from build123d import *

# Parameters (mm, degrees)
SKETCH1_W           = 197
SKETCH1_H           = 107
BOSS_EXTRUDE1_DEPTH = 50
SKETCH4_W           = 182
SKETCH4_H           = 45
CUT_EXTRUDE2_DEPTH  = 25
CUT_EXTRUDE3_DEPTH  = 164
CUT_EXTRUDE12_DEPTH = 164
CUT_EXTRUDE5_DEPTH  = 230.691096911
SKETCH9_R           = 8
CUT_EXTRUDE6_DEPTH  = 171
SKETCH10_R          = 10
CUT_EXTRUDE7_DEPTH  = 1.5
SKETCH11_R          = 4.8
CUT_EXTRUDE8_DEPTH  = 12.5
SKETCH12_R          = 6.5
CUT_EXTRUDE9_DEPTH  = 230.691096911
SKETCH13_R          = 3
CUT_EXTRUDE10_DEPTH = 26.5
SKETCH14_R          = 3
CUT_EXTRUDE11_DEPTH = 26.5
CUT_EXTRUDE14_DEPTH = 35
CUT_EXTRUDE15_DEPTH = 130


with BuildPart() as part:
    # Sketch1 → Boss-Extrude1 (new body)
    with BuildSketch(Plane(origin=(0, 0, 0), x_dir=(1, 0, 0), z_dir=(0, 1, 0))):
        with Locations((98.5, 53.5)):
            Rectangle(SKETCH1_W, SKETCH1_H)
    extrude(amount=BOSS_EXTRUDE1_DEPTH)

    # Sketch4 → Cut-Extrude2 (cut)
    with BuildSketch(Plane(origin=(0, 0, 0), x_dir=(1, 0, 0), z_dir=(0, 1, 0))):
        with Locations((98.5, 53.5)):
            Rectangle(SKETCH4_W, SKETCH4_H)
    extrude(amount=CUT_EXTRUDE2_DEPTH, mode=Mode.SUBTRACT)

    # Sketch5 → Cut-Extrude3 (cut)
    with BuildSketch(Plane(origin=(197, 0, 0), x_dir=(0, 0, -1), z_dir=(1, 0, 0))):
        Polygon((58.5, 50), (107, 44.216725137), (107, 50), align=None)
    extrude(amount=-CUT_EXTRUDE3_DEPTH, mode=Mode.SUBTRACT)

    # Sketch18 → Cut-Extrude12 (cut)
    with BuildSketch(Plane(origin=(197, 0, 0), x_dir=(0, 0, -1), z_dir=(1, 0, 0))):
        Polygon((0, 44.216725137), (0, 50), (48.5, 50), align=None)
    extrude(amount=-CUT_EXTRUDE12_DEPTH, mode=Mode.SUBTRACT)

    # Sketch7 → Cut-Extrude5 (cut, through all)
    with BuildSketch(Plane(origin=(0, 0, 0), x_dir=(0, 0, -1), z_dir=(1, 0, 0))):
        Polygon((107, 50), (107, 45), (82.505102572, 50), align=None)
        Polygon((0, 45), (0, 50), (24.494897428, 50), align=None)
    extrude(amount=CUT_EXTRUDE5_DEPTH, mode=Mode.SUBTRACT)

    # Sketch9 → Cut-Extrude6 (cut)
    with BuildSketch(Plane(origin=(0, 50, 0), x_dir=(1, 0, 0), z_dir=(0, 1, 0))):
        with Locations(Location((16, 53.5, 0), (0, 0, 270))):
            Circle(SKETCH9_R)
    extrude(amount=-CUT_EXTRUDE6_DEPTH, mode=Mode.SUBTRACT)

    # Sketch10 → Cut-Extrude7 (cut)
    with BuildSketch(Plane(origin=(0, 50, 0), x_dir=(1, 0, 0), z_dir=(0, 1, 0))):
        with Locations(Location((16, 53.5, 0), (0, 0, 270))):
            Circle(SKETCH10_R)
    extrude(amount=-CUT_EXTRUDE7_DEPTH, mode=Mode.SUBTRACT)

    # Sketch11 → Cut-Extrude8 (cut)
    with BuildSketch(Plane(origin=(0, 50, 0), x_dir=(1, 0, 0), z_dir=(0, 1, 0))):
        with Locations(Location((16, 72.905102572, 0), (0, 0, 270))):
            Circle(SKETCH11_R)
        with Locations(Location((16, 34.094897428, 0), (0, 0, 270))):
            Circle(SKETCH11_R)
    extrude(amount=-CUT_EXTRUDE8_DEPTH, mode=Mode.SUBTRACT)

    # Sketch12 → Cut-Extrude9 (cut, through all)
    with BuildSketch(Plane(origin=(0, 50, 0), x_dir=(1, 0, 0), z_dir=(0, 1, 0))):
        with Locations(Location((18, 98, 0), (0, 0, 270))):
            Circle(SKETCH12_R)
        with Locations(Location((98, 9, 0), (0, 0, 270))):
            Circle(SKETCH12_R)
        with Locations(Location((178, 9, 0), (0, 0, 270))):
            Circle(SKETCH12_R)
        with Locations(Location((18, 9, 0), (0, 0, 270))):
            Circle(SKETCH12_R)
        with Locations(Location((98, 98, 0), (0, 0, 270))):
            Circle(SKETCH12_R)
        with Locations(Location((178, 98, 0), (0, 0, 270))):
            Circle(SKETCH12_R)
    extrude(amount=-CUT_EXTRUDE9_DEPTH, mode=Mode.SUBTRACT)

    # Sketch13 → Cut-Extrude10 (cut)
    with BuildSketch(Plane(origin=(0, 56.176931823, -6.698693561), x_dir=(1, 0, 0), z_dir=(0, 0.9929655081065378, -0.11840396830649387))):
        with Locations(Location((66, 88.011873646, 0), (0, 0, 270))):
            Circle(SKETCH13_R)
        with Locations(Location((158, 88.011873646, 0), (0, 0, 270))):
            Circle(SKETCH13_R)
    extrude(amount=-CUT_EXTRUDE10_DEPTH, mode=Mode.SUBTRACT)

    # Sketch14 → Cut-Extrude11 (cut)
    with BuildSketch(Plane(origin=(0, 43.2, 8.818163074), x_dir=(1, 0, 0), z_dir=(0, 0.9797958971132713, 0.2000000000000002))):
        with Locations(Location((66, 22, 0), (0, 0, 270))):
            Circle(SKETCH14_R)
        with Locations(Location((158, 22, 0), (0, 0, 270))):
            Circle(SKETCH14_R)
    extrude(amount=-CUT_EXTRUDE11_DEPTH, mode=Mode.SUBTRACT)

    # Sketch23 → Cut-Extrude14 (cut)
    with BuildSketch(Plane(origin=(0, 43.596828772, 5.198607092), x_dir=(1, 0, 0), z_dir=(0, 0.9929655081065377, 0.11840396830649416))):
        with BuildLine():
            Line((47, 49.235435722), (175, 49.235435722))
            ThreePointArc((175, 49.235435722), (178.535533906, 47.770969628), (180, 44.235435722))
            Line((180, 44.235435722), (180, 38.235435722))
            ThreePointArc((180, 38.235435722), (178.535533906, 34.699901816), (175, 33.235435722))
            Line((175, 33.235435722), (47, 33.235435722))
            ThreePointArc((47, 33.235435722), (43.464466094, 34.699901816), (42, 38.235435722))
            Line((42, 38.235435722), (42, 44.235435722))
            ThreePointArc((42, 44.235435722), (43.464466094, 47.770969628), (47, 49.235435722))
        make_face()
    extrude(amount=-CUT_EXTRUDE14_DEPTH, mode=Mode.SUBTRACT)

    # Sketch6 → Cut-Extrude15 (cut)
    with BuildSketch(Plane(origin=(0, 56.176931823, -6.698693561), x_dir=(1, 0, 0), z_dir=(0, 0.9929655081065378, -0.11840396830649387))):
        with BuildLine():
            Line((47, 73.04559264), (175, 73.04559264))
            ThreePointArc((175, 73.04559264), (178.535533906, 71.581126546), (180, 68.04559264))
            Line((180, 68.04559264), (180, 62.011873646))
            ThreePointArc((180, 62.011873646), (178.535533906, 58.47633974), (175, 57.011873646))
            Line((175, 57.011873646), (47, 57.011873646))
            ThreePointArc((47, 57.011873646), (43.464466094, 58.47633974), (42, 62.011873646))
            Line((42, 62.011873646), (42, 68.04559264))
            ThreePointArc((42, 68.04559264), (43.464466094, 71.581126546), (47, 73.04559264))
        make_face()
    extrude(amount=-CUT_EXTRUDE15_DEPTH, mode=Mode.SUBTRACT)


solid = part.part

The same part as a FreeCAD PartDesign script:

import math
import FreeCAD as App
import Part
import Sketcher

V = App.Vector
Q = App.Units.Quantity


def add_polygon(sketch, points):
    """Adds a closed chain of lines whose ends are joined by coincident constraints."""
    first, n = sketch.GeometryCount, len(points)
    for a, b in zip(points, points[1:] + points[:1]):
        sketch.addGeometry(Part.LineSegment(App.Vector(*a, 0), App.Vector(*b, 0)), False)
    for i in range(n):
        sketch.addConstraint(Sketcher.Constraint("Coincident", first + i, 2, first + (i + 1) % n, 1))

doc = App.newDocument("Part")
params = doc.addObject("Spreadsheet::Sheet", "Params")
for row, (alias, value) in enumerate([
    ("sketch1_width", "197 mm"),
    ("sketch1_height", "107 mm"),
    ("pad1_length", "50 mm"),
    ("sketch2_width", "182 mm"),
    ("sketch2_height", "45 mm"),
    ("pocket1_length", "25 mm"),
    ("sketch3_height", "48.5 mm"),
    ("pocket2_length", "164 mm"),
    ("sketch4_height", "48.5 mm"),
    ("pocket3_length", "164 mm"),
    ("sketch5_width", "5 mm"),
    ("sketch5_length", "25 mm"),
    ("sketch6_diameter", "16 mm"),
    ("pocket5_length", "171 mm"),
    ("sketch7_diameter", "20 mm"),
    ("pocket6_length", "1.5 mm"),
    ("sketch8_diameter", "9.6 mm"),
    ("pocket7_length", "12.5 mm"),
    ("sketch9_diameter", "13 mm"),
    ("sketch10_diameter", "6 mm"),
    ("pocket9_length", "26.5 mm"),
    ("sketch11_diameter", "6 mm"),
    ("pocket10_length", "26.5 mm"),
    ("sketch12_radius", "5 mm"),
    ("sketch12_width", "128 mm"),
    ("sketch12_height", "6 mm"),
    ("pocket11_length", "35 mm"),
    ("sketch13_radius", "5 mm"),
    ("sketch13_width", "128 mm"),
    ("pocket12_length", "130 mm"),
], start=1):
    params.set(f"A{row}", alias)
    params.set(f"B{row}", "=" + value)
    params.setAlias(f"B{row}", alias)

body = doc.addObject("PartDesign::Body", "Body")

# Sketch on XZ plane
sketch1 = body.newObject("Sketcher::SketchObject", "Sketch")
sketch1.AttachmentSupport = (doc.getObject("XZ_Plane"), [""])
sketch1.MapMode = "FlatFace"
add_polygon(sketch1, [(0, -107), (0, 0), (197, 0), (197, -107)])  # lines 0-3
sketch1.addConstraint(Sketcher.Constraint("Vertical", 0))
sketch1.addConstraint(Sketcher.Constraint("Horizontal", 1))
sketch1.addConstraint(Sketcher.Constraint("Vertical", 2))
sketch1.addConstraint(Sketcher.Constraint("Horizontal", 3))
sketch1.addConstraint(Sketcher.Constraint("Coincident", 0, 2, -1, 1))
sketch1.addConstraint(Sketcher.Constraint("DistanceX", 1, 1, 1, 2, Q("197 mm")))
sketch1.addConstraint(Sketcher.Constraint("DistanceY", 0, 1, 0, 2, Q("107 mm")))
sketch1.setExpression("Constraints[9]", "Params.sketch1_width")
sketch1.setExpression("Constraints[10]", "Params.sketch1_height")
pad1 = body.newObject("PartDesign::Pad", "Pad")
pad1.Profile = sketch1
pad1.setExpression("Length", "Params.pad1_length")
pad1.Reversed = True

# Sketch on XZ plane
sketch2 = body.newObject("Sketcher::SketchObject", "Sketch001")
sketch2.AttachmentSupport = (doc.getObject("XZ_Plane"), [""])
sketch2.MapMode = "FlatFace"
add_polygon(sketch2, [(8, -76), (8, -31), (190, -31), (190, -76)])  # lines 0-3
sketch2.addConstraint(Sketcher.Constraint("Vertical", 0))
sketch2.addConstraint(Sketcher.Constraint("Horizontal", 1))
sketch2.addConstraint(Sketcher.Constraint("Vertical", 2))
sketch2.addConstraint(Sketcher.Constraint("Horizontal", 3))
sketch2.addConstraint(Sketcher.Constraint("DistanceX", 1, 1, 1, 2, Q("182 mm")))
sketch2.addConstraint(Sketcher.Constraint("DistanceY", 0, 1, 0, 2, Q("45 mm")))
sketch2.addConstraint(Sketcher.Constraint("DistanceY", 0, 2, -1, 1, Q("31 mm")))
sketch2.addConstraint(Sketcher.Constraint("DistanceX", -1, 1, 0, 2, Q("7.5 mm")))
sketch2.setExpression("Constraints[8]", "Params.sketch2_width")
sketch2.setExpression("Constraints[9]", "Params.sketch2_height")
pocket1 = body.newObject("PartDesign::Pocket", "Pocket")
pocket1.Profile = sketch2
pocket1.setExpression("Length", "Params.pocket1_length")

# Sketch on YZ plane
sketch3 = body.newObject("Sketcher::SketchObject", "Sketch002")
sketch3.AttachmentSupport = (doc.getObject("YZ_Plane"), [""])
sketch3.MapMode = "FlatFace"
sketch3.AttachmentOffset = App.Placement(V(0, 0, 197), App.Rotation())
add_polygon(sketch3, [(50, -58), (44, -107), (50, -107)])  # lines 0-2
sketch3.addConstraint(Sketcher.Constraint("Horizontal", 1))
sketch3.addConstraint(Sketcher.Constraint("Vertical", 2))
sketch3.addConstraint(Sketcher.Constraint("DistanceY", 2, 1, 2, 2, Q("48.5 mm")))
sketch3.addConstraint(Sketcher.Constraint("DistanceY", 0, 2, -1, 1, Q("107 mm")))
sketch3.addConstraint(Sketcher.Constraint("DistanceX", -1, 1, 1, 2, Q("50 mm")))
sketch3.addConstraint(Sketcher.Constraint("Angle", 0, Q("-96.8 deg")))
sketch3.setExpression("Constraints[5]", "Params.sketch3_height")
pocket2 = body.newObject("PartDesign::Pocket", "Pocket001")
pocket2.Profile = sketch3
pocket2.setExpression("Length", "Params.pocket2_length")

# Sketch on YZ plane
sketch4 = body.newObject("Sketcher::SketchObject", "Sketch003")
sketch4.AttachmentSupport = (doc.getObject("YZ_Plane"), [""])
sketch4.MapMode = "FlatFace"
sketch4.AttachmentOffset = App.Placement(V(0, 0, 197), App.Rotation())
add_polygon(sketch4, [(50, 0), (44, 0), (50, -48)])  # lines 0-2
sketch4.addConstraint(Sketcher.Constraint("Horizontal", 0))
sketch4.addConstraint(Sketcher.Constraint("Vertical", 2))
sketch4.addConstraint(Sketcher.Constraint("PointOnObject", 0, 2, -1))
sketch4.addConstraint(Sketcher.Constraint("DistanceY", 2, 1, 2, 2, Q("48.5 mm")))
sketch4.addConstraint(Sketcher.Constraint("DistanceX", -1, 1, 1, 2, Q("50 mm")))
sketch4.addConstraint(Sketcher.Constraint("Angle", 1, Q("-83.2 deg")))
sketch4.setExpression("Constraints[6]", "Params.sketch4_height")
pocket3 = body.newObject("PartDesign::Pocket", "Pocket002")
pocket3.Profile = sketch4
pocket3.setExpression("Length", "Params.pocket3_length")

# Sketch on YZ plane
sketch5 = body.newObject("Sketcher::SketchObject", "Sketch004")
sketch5.AttachmentSupport = (doc.getObject("YZ_Plane"), [""])
sketch5.MapMode = "FlatFace"
add_polygon(sketch5, [(45, -107), (50, -107), (50, -83)])  # lines 0-2
add_polygon(sketch5, [(50, 0), (45, 0), (50, -24)])  # lines 3-5
sketch5.addConstraint(Sketcher.Constraint("Horizontal", 0))
sketch5.addConstraint(Sketcher.Constraint("Vertical", 1))
sketch5.addConstraint(Sketcher.Constraint("Horizontal", 3))
sketch5.addConstraint(Sketcher.Constraint("Vertical", 5))
sketch5.addConstraint(Sketcher.Constraint("PointOnObject", 3, 2, -1))
sketch5.addConstraint(Sketcher.Constraint("Vertical", 2, 2, 3, 2))
sketch5.addConstraint(Sketcher.Constraint("Vertical", 1, 2, 4, 2))
sketch5.addConstraint(Sketcher.Constraint("Equal", 1, 5))
sketch5.addConstraint(Sketcher.Constraint("DistanceX", 0, 1, 0, 2, Q("5 mm")))
sketch5.addConstraint(Sketcher.Constraint("Distance", 2, Q("25 mm")))
sketch5.addConstraint(Sketcher.Constraint("DistanceX", -1, 1, 0, 2, Q("50 mm")))
sketch5.addConstraint(Sketcher.Constraint("DistanceY", 0, 2, -1, 1, Q("107 mm")))
sketch5.setExpression("Constraints[14]", "Params.sketch5_width")
sketch5.setExpression("Constraints[15]", "Params.sketch5_length")
pocket4 = body.newObject("PartDesign::Pocket", "Pocket003")
pocket4.Profile = sketch5
pocket4.Type = "ThroughAll"
pocket4.Reversed = True

# Sketch on XZ plane
sketch6 = body.newObject("Sketcher::SketchObject", "Sketch005")
sketch6.AttachmentSupport = (doc.getObject("XZ_Plane"), [""])
sketch6.MapMode = "FlatFace"
sketch6.AttachmentOffset = App.Placement(V(0, 0, -50), App.Rotation())
sketch6.addGeometry(Part.Circle(V(16, -54, 0), V(0, 0, 1), 8), False)
sketch6.addConstraint(Sketcher.Constraint("Diameter", 0, Q("16 mm")))
sketch6.addConstraint(Sketcher.Constraint("DistanceX", -1, 1, 0, 3, Q("16 mm")))
sketch6.addConstraint(Sketcher.Constraint("DistanceY", 0, 3, -1, 1, Q("53.5 mm")))
sketch6.setExpression("Constraints[0]", "Params.sketch6_diameter")
pocket5 = body.newObject("PartDesign::Pocket", "Pocket004")
pocket5.Profile = sketch6
pocket5.setExpression("Length", "Params.pocket5_length")
pocket5.Reversed = True

# Sketch on XZ plane
sketch7 = body.newObject("Sketcher::SketchObject", "Sketch006")
sketch7.AttachmentSupport = (doc.getObject("XZ_Plane"), [""])
sketch7.MapMode = "FlatFace"
sketch7.AttachmentOffset = App.Placement(V(0, 0, -50), App.Rotation())
sketch7.addGeometry(Part.Circle(V(16, -54, 0), V(0, 0, 1), 10), False)
sketch7.addConstraint(Sketcher.Constraint("Diameter", 0, Q("20 mm")))
sketch7.addConstraint(Sketcher.Constraint("DistanceX", -1, 1, 0, 3, Q("16 mm")))
sketch7.addConstraint(Sketcher.Constraint("DistanceY", 0, 3, -1, 1, Q("53.5 mm")))
sketch7.setExpression("Constraints[0]", "Params.sketch7_diameter")
pocket6 = body.newObject("PartDesign::Pocket", "Pocket005")
pocket6.Profile = sketch7
pocket6.setExpression("Length", "Params.pocket6_length")
pocket6.Reversed = True

# Sketch on XZ plane
sketch8 = body.newObject("Sketcher::SketchObject", "Sketch007")
sketch8.AttachmentSupport = (doc.getObject("XZ_Plane"), [""])
sketch8.MapMode = "FlatFace"
sketch8.AttachmentOffset = App.Placement(V(0, 0, -50), App.Rotation())
sketch8.addGeometry(Part.Circle(V(16, -72.9, 0), V(0, 0, 1), 4.8), False)
sketch8.addGeometry(Part.Circle(V(16, -34.1, 0), V(0, 0, 1), 4.8), False)
sketch8.addConstraint(Sketcher.Constraint("Equal", 0, 1))
sketch8.addConstraint(Sketcher.Constraint("Vertical", 0, 3, 1, 3))
sketch8.addConstraint(Sketcher.Constraint("Diameter", 0, Q("9.6 mm")))
sketch8.addConstraint(Sketcher.Constraint("DistanceX", -1, 1, 0, 3, Q("16 mm")))
sketch8.addConstraint(Sketcher.Constraint("DistanceY", 0, 3, -1, 1, Q("72.905103 mm")))
sketch8.addConstraint(Sketcher.Constraint("DistanceY", 1, 3, -1, 1, Q("34.094897 mm")))
sketch8.setExpression("Constraints[2]", "Params.sketch8_diameter")
pocket7 = body.newObject("PartDesign::Pocket", "Pocket006")
pocket7.Profile = sketch8
pocket7.setExpression("Length", "Params.pocket7_length")
pocket7.Reversed = True

# Sketch on XZ plane
sketch9 = body.newObject("Sketcher::SketchObject", "Sketch008")
sketch9.AttachmentSupport = (doc.getObject("XZ_Plane"), [""])
sketch9.MapMode = "FlatFace"
sketch9.AttachmentOffset = App.Placement(V(0, 0, -50), App.Rotation())
sketch9.addGeometry(Part.Circle(V(18, -98, 0), V(0, 0, 1), 6), False)
sketch9.addGeometry(Part.Circle(V(98, -9, 0), V(0, 0, 1), 6), False)
sketch9.addGeometry(Part.Circle(V(178, -9, 0), V(0, 0, 1), 6), False)
sketch9.addGeometry(Part.Circle(V(18, -9, 0), V(0, 0, 1), 6), False)
sketch9.addGeometry(Part.Circle(V(98, -98, 0), V(0, 0, 1), 6), False)
sketch9.addGeometry(Part.Circle(V(178, -98, 0), V(0, 0, 1), 6), False)
sketch9.addConstraint(Sketcher.Constraint("Equal", 0, 1))
sketch9.addConstraint(Sketcher.Constraint("Equal", 1, 2))
sketch9.addConstraint(Sketcher.Constraint("Equal", 2, 3))
sketch9.addConstraint(Sketcher.Constraint("Equal", 3, 4))
sketch9.addConstraint(Sketcher.Constraint("Equal", 4, 5))
sketch9.addConstraint(Sketcher.Constraint("Horizontal", 1, 3, 2, 3))
sketch9.addConstraint(Sketcher.Constraint("Horizontal", 2, 3, 3, 3))
sketch9.addConstraint(Sketcher.Constraint("Horizontal", 0, 3, 4, 3))
sketch9.addConstraint(Sketcher.Constraint("Horizontal", 4, 3, 5, 3))
sketch9.addConstraint(Sketcher.Constraint("Vertical", 0, 3, 3, 3))
sketch9.addConstraint(Sketcher.Constraint("Vertical", 1, 3, 4, 3))
sketch9.addConstraint(Sketcher.Constraint("Vertical", 2, 3, 5, 3))
sketch9.addConstraint(Sketcher.Constraint("Diameter", 0, Q("13 mm")))
sketch9.addConstraint(Sketcher.Constraint("DistanceX", -1, 1, 0, 3, Q("18 mm")))
sketch9.addConstraint(Sketcher.Constraint("DistanceY", 0, 3, -1, 1, Q("98 mm")))
sketch9.addConstraint(Sketcher.Constraint("DistanceX", -1, 1, 1, 3, Q("98 mm")))
sketch9.addConstraint(Sketcher.Constraint("DistanceY", 1, 3, -1, 1, Q("9 mm")))
sketch9.addConstraint(Sketcher.Constraint("DistanceX", -1, 1, 2, 3, Q("178 mm")))
sketch9.setExpression("Constraints[12]", "Params.sketch9_diameter")
pocket8 = body.newObject("PartDesign::Pocket", "Pocket007")
pocket8.Profile = sketch9
pocket8.Type = "ThroughAll"
pocket8.Reversed = True

# Sketch on an angled plane
sketch10 = body.newObject("Sketcher::SketchObject", "Sketch009")
sketch10.Placement = App.Placement(V(0, 56.176932, -6.698694), App.Rotation(V(1, 0, 0), V(0, -0.118403968, -0.992965508), V(0, 0.992965508, -0.118403968), "ZXY"))
sketch10.addGeometry(Part.Circle(V(66, 88, 0), V(0, 0, 1), 3), False)
sketch10.addGeometry(Part.Circle(V(158, 88, 0), V(0, 0, 1), 3), False)
sketch10.addConstraint(Sketcher.Constraint("Equal", 0, 1))
sketch10.addConstraint(Sketcher.Constraint("Horizontal", 0, 3, 1, 3))
sketch10.addConstraint(Sketcher.Constraint("Diameter", 0, Q("6 mm")))
sketch10.addConstraint(Sketcher.Constraint("DistanceX", -1, 1, 0, 3, Q("66 mm")))
sketch10.addConstraint(Sketcher.Constraint("DistanceX", -1, 1, 1, 3, Q("158 mm")))
sketch10.addConstraint(Sketcher.Constraint("DistanceY", -1, 1, 0, 3, Q("88.011874 mm")))
sketch10.setExpression("Constraints[2]", "Params.sketch10_diameter")
pocket9 = body.newObject("PartDesign::Pocket", "Pocket008")
pocket9.Profile = sketch10
pocket9.setExpression("Length", "Params.pocket9_length")

# Sketch on an angled plane
sketch11 = body.newObject("Sketcher::SketchObject", "Sketch010")
sketch11.Placement = App.Placement(V(0, 43.2, 8.818163), App.Rotation(V(1, 0, 0), V(0, 0.2, -0.979795897), V(0, 0.979795897, 0.2), "ZXY"))
sketch11.addGeometry(Part.Circle(V(66, 22, 0), V(0, 0, 1), 3), False)
sketch11.addGeometry(Part.Circle(V(158, 22, 0), V(0, 0, 1), 3), False)
sketch11.addConstraint(Sketcher.Constraint("Equal", 0, 1))
sketch11.addConstraint(Sketcher.Constraint("Horizontal", 0, 3, 1, 3))
sketch11.addConstraint(Sketcher.Constraint("Diameter", 0, Q("6 mm")))
sketch11.addConstraint(Sketcher.Constraint("DistanceX", -1, 1, 0, 3, Q("66 mm")))
sketch11.addConstraint(Sketcher.Constraint("DistanceY", -1, 1, 0, 3, Q("22 mm")))
sketch11.addConstraint(Sketcher.Constraint("DistanceX", -1, 1, 1, 3, Q("158 mm")))
sketch11.setExpression("Constraints[2]", "Params.sketch11_diameter")
pocket10 = body.newObject("PartDesign::Pocket", "Pocket009")
pocket10.Profile = sketch11
pocket10.setExpression("Length", "Params.pocket10_length")

# Sketch on an angled plane
sketch12 = body.newObject("Sketcher::SketchObject", "Sketch011")
sketch12.Placement = App.Placement(V(0, 43.596829, 5.198607), App.Rotation(V(1, 0, 0), V(0, 0.118403968, -0.992965508), V(0, 0.992965508, 0.118403968), "ZXY"))
sketch12.addGeometry(Part.LineSegment(V(175, 49, 0), V(47, 49, 0)), False)
sketch12.addGeometry(Part.ArcOfCircle(Part.Circle(V(47, 44, 0), V(0, 0, 1), 5), math.radians(90), math.radians(180)), False)
sketch12.addGeometry(Part.LineSegment(V(42, 44, 0), V(42, 38, 0)), False)
sketch12.addGeometry(Part.ArcOfCircle(Part.Circle(V(47, 38, 0), V(0, 0, 1), 5), math.radians(180), math.radians(270)), False)
sketch12.addGeometry(Part.LineSegment(V(47, 33, 0), V(175, 33, 0)), False)
sketch12.addGeometry(Part.ArcOfCircle(Part.Circle(V(175, 38, 0), V(0, 0, 1), 5), math.radians(-90), math.radians(0)), False)
sketch12.addGeometry(Part.LineSegment(V(180, 38, 0), V(180, 44, 0)), False)
sketch12.addGeometry(Part.ArcOfCircle(Part.Circle(V(175, 44, 0), V(0, 0, 1), 5), math.radians(0), math.radians(90)), False)
sketch12.addConstraint(Sketcher.Constraint("Tangent", 0, 2, 1, 1))
sketch12.addConstraint(Sketcher.Constraint("Tangent", 1, 2, 2, 1))
sketch12.addConstraint(Sketcher.Constraint("Tangent", 2, 2, 3, 1))
sketch12.addConstraint(Sketcher.Constraint("Tangent", 3, 2, 4, 1))
sketch12.addConstraint(Sketcher.Constraint("Tangent", 4, 2, 5, 1))
sketch12.addConstraint(Sketcher.Constraint("Tangent", 5, 2, 6, 1))
sketch12.addConstraint(Sketcher.Constraint("Tangent", 6, 2, 7, 1))
sketch12.addConstraint(Sketcher.Constraint("Tangent", 7, 2, 0, 1))
sketch12.addConstraint(Sketcher.Constraint("Horizontal", 0))
sketch12.addConstraint(Sketcher.Constraint("Vertical", 2))
sketch12.addConstraint(Sketcher.Constraint("Horizontal", 4))
sketch12.addConstraint(Sketcher.Constraint("Vertical", 6))
sketch12.addConstraint(Sketcher.Constraint("Equal", 1, 3))
sketch12.addConstraint(Sketcher.Constraint("Equal", 3, 5))
sketch12.addConstraint(Sketcher.Constraint("Equal", 5, 7))
sketch12.addConstraint(Sketcher.Constraint("Radius", 1, Q("5 mm")))
sketch12.addConstraint(Sketcher.Constraint("DistanceX", 0, 2, 0, 1, Q("128 mm")))
sketch12.addConstraint(Sketcher.Constraint("DistanceY", 2, 2, 2, 1, Q("6 mm")))
sketch12.addConstraint(Sketcher.Constraint("DistanceX", -1, 1, 1, 3, Q("47 mm")))
sketch12.addConstraint(Sketcher.Constraint("DistanceY", -1, 1, 1, 3, Q("44.235436 mm")))
sketch12.setExpression("Constraints[15]", "Params.sketch12_radius")
sketch12.setExpression("Constraints[16]", "Params.sketch12_width")
sketch12.setExpression("Constraints[17]", "Params.sketch12_height")
pocket11 = body.newObject("PartDesign::Pocket", "Pocket010")
pocket11.Profile = sketch12
pocket11.setExpression("Length", "Params.pocket11_length")

# Sketch on an angled plane
sketch13 = body.newObject("Sketcher::SketchObject", "Sketch012")
sketch13.Placement = App.Placement(V(0, 56.176932, -6.698694), App.Rotation(V(1, 0, 0), V(0, -0.118403968, -0.992965508), V(0, 0.992965508, -0.118403968), "ZXY"))
sketch13.addGeometry(Part.LineSegment(V(175, 73, 0), V(47, 73, 0)), False)
sketch13.addGeometry(Part.ArcOfCircle(Part.Circle(V(47, 68, 0), V(0, 0, 1), 5), math.radians(90), math.radians(180)), False)
sketch13.addGeometry(Part.LineSegment(V(42, 68, 0), V(42, 62, 0)), False)
sketch13.addGeometry(Part.ArcOfCircle(Part.Circle(V(47, 62, 0), V(0, 0, 1), 5), math.radians(180), math.radians(270)), False)
sketch13.addGeometry(Part.LineSegment(V(47, 57, 0), V(175, 57, 0)), False)
sketch13.addGeometry(Part.ArcOfCircle(Part.Circle(V(175, 62, 0), V(0, 0, 1), 5), math.radians(-90), math.radians(0)), False)
sketch13.addGeometry(Part.LineSegment(V(180, 62, 0), V(180, 68, 0)), False)
sketch13.addGeometry(Part.ArcOfCircle(Part.Circle(V(175, 68, 0), V(0, 0, 1), 5), math.radians(0), math.radians(90)), False)
sketch13.addConstraint(Sketcher.Constraint("Tangent", 0, 2, 1, 1))
sketch13.addConstraint(Sketcher.Constraint("Tangent", 1, 2, 2, 1))
sketch13.addConstraint(Sketcher.Constraint("Tangent", 2, 2, 3, 1))
sketch13.addConstraint(Sketcher.Constraint("Tangent", 3, 2, 4, 1))
sketch13.addConstraint(Sketcher.Constraint("Tangent", 4, 2, 5, 1))
sketch13.addConstraint(Sketcher.Constraint("Tangent", 5, 2, 6, 1))
sketch13.addConstraint(Sketcher.Constraint("Tangent", 6, 2, 7, 1))
sketch13.addConstraint(Sketcher.Constraint("Tangent", 7, 2, 0, 1))
sketch13.addConstraint(Sketcher.Constraint("Horizontal", 0))
sketch13.addConstraint(Sketcher.Constraint("Vertical", 2))
sketch13.addConstraint(Sketcher.Constraint("Horizontal", 4))
sketch13.addConstraint(Sketcher.Constraint("Vertical", 6))
sketch13.addConstraint(Sketcher.Constraint("Equal", 1, 3))
sketch13.addConstraint(Sketcher.Constraint("Equal", 3, 5))
sketch13.addConstraint(Sketcher.Constraint("Equal", 5, 7))
sketch13.addConstraint(Sketcher.Constraint("Radius", 1, Q("5 mm")))
sketch13.addConstraint(Sketcher.Constraint("DistanceX", 0, 2, 0, 1, Q("128 mm")))
sketch13.addConstraint(Sketcher.Constraint("DistanceX", -1, 1, 1, 3, Q("47 mm")))
sketch13.addConstraint(Sketcher.Constraint("DistanceY", 2, 2, 2, 1, Q("6.033719 mm")))
sketch13.addConstraint(Sketcher.Constraint("DistanceY", -1, 1, 1, 3, Q("68.045593 mm")))
sketch13.setExpression("Constraints[15]", "Params.sketch13_radius")
sketch13.setExpression("Constraints[16]", "Params.sketch13_width")
pocket12 = body.newObject("PartDesign::Pocket", "Pocket011")
pocket12.Profile = sketch13
pocket12.setExpression("Length", "Params.pocket12_length")

doc.recompute()
